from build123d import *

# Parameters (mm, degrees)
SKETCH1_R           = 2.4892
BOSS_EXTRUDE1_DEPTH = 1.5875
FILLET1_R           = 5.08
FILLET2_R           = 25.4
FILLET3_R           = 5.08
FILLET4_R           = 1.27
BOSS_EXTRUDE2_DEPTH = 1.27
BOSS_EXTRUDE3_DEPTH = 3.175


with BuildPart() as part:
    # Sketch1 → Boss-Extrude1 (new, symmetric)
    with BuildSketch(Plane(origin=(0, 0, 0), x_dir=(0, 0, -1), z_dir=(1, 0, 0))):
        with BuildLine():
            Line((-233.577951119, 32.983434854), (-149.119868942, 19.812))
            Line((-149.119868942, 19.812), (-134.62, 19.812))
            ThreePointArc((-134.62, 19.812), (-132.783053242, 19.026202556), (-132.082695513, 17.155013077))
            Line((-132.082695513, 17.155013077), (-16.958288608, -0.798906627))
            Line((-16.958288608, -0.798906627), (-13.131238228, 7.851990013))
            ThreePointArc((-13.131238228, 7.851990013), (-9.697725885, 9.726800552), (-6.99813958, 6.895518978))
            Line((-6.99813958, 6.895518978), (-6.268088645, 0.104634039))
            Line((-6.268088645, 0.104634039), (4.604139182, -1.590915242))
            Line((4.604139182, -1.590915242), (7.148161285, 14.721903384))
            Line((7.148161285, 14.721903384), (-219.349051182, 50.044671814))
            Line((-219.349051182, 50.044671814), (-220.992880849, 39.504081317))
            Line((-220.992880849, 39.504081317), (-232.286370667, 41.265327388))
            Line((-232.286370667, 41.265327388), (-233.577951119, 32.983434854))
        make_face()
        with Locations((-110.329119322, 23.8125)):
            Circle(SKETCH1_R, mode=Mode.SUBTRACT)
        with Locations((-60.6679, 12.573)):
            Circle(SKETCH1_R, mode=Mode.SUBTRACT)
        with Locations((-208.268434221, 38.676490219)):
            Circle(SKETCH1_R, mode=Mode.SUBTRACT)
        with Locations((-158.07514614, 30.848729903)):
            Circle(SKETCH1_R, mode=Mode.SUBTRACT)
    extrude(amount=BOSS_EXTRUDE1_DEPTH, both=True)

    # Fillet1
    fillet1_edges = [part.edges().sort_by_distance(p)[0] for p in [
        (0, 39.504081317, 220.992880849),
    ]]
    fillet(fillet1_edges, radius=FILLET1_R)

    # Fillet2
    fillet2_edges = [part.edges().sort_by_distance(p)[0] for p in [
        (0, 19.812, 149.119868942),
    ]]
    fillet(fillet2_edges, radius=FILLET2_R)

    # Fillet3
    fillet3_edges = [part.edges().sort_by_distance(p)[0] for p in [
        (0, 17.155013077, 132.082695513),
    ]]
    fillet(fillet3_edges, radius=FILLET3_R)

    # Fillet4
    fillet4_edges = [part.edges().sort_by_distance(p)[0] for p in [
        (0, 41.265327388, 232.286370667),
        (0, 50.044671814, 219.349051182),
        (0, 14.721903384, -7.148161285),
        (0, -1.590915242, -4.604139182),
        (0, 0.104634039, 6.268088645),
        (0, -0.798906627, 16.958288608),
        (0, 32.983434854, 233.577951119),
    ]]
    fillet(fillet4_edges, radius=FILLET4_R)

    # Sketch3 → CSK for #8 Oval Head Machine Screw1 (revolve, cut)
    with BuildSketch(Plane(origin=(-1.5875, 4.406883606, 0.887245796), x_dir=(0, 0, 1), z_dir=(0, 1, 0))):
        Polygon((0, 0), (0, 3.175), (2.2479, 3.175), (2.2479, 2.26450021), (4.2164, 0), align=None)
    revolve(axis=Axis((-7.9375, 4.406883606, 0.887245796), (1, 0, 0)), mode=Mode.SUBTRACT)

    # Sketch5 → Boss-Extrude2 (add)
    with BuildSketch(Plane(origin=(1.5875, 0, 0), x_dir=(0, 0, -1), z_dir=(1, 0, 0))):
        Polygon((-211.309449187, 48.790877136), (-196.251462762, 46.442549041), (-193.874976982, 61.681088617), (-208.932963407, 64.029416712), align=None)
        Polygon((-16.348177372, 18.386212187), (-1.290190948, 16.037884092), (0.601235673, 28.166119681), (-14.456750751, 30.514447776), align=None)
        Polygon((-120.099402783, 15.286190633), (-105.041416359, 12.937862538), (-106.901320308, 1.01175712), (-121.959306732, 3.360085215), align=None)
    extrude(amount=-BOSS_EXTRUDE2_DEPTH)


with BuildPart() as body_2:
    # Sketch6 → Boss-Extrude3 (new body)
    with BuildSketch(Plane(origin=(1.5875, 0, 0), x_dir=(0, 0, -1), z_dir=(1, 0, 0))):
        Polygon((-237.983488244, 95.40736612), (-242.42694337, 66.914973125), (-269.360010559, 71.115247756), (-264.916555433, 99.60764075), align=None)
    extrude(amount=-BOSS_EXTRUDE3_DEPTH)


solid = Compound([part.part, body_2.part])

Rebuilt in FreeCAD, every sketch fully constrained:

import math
import FreeCAD as App
import Part
import Sketcher
from FreeCAD import Vector
Q = App.Units.Quantity


def edges_at(feature, points):
    """Names of the edges that pass closest to the given points."""
    edges = feature.Shape.Edges
    near = lambda p: min(range(len(edges)), key=lambda i: edges[i].distToShape(Part.Vertex(*p))[0])
    return sorted({f"Edge{near(p) + 1}" for p in points})


def add_polygon(sketch, points):
    """Adds a closed chain of lines whose ends are joined by coincident constraints."""
    first, n = sketch.GeometryCount, len(points)
    for a, b in zip(points, points[1:] + points[:1]):
        sketch.addGeometry(Part.LineSegment(App.Vector(*a, 0), App.Vector(*b, 0)), False)
    for i in range(n):
        sketch.addConstraint(Sketcher.Constraint("Coincident", first + i, 2, first + (i + 1) % n, 1))

doc = App.newDocument("Part")
body = doc.addObject("PartDesign::Body", "Body")

# Sketch on YZ plane
sketch1 = body.newObject("Sketcher::SketchObject", "Sketch")
sketch1.AttachmentSupport = (doc.getObject("YZ_Plane"), [""])
sketch1.MapMode = "FlatFace"
sketch1.addGeometry([
    Part.LineSegment(Vector(32.983435, 233.577951, 0), Vector(19.812, 149.119869, 0)),  # 0
    Part.LineSegment(Vector(19.812, 149.119869, 0), Vector(19.812, 134.62, 0)),  # 1
    Part.ArcOfCircle(Part.Circle(Vector(17.272, 134.62, 0), Vector(0, 0, 1), 2.54), math.radians(-92.639854), math.radians(0)),  # 2
    Part.LineSegment(Vector(17.155013, 132.082696, 0), Vector(-0.798907, 16.958289, 0)),  # 3
    Part.LineSegment(Vector(-0.798907, 16.958289, 0), Vector(7.85199, 13.131238, 0)),  # 4
    Part.ArcOfCircle(Part.Circle(Vector(6.552075, 10.192832, 0), Vector(0, 0, 1), 3.2131), math.radians(-83.86401), math.radians(66.13599)),  # 5
    Part.LineSegment(Vector(6.895519, 6.99814, 0), Vector(0.104634, 6.268089, 0)),  # 6
    Part.LineSegment(Vector(0.104634, 6.268089, 0), Vector(-1.590915, -4.604139, 0)),  # 7
    Part.LineSegment(Vector(-1.590915, -4.604139, 0), Vector(14.721903, -7.148161, 0)),  # 8
    Part.LineSegment(Vector(14.721903, -7.148161, 0), Vector(50.044672, 219.349051, 0)),  # 9
    Part.LineSegment(Vector(50.044672, 219.349051, 0), Vector(39.504081, 220.992881, 0)),  # 10
    Part.LineSegment(Vector(39.504081, 220.992881, 0), Vector(41.265327, 232.286371, 0)),  # 11
    Part.LineSegment(Vector(41.265327, 232.286371, 0), Vector(32.983435, 233.577951, 0)),  # 12
    Part.Circle(Vector(12.573, 60.6679, 0), Vector(0, 0, 1), 2.4892),  # 13
    Part.Circle(Vector(23.8125, 110.329119, 0), Vector(0, 0, 1), 2.4892),  # 14
    Part.Circle(Vector(30.84873, 158.075146, 0), Vector(0, 0, 1), 2.4892),  # 15
    Part.Circle(Vector(38.67649, 208.268434, 0), Vector(0, 0, 1), 2.4892),  # 16
], False)
sketch1.addConstraint([
    Sketcher.Constraint("Coincident", 0, 2, 1, 1),
    Sketcher.Constraint("Coincident", 1, 2, 2, 2),
    Sketcher.Constraint("Coincident", 2, 1, 3, 1),
    Sketcher.Constraint("Coincident", 3, 2, 4, 1),
    Sketcher.Constraint("Coincident", 4, 2, 5, 2),
    Sketcher.Constraint("Coincident", 5, 1, 6, 1),
    Sketcher.Constraint("Coincident", 6, 2, 7, 1),
    Sketcher.Constraint("Coincident", 7, 2, 8, 1),
    Sketcher.Constraint("Coincident", 8, 2, 9, 1),
    Sketcher.Constraint("Coincident", 9, 2, 10, 1),
    Sketcher.Constraint("Coincident", 10, 2, 11, 1),
    Sketcher.Constraint("Coincident", 11, 2, 12, 1),
    Sketcher.Constraint("Coincident", 12, 2, 0, 1),
    Sketcher.Constraint("Vertical", 1),
    Sketcher.Constraint("Radius", 2, Q("0.1 in")),
    Sketcher.Constraint("Diameter", 13, Q("0.196 in")),
    Sketcher.Constraint("Diameter", 14, Q("0.196 in")),
    Sketcher.Constraint("Diameter", 15, Q("0.196 in")),
    Sketcher.Constraint("Diameter", 16, Q("0.196 in")),
    Sketcher.Constraint("DistanceY", -1, 1, 2, 3, Q("5.3 in")),
    Sketcher.Constraint("DistanceY", -1, 1, 1, 2, Q("5.3 in")),
    Sketcher.Constraint("Radius", 5, Q("0.1265 in")),
    Sketcher.Constraint("Distance", 8, Q("0.65 in")),
    Sketcher.Constraint("Distance", 10, Q("0.42 in")),
    Sketcher.Constraint("Distance", 11, Q("0.45 in")),
    Sketcher.Constraint("Distance", 12, Q("0.33 in")),
    Sketcher.Constraint("DistanceX", -1, 1, 2, 3, Q("0.68 in")),
    Sketcher.Constraint("Distance", 9, Q("9.025 in")),
    Sketcher.Constraint("DistanceX", -1, 1, 13, 3, Q("0.495 in")),
    Sketcher.Constraint("DistanceX", -1, 1, 14, 3, Q("0.9375 in")),
    Sketcher.Constraint("DistanceY", -1, 1, 13, 3, Q("2.3885 in")),
    Sketcher.Constraint("DistanceY", 1, 2, 1, 1, 14.499869),
    Sketcher.Constraint("DistanceY", 5, 1, 4, 2, 6.133099),
    Sketcher.Constraint("DistanceY", 6, 2, 3, 2, 10.6902),
    Sketcher.Constraint("DistanceY", 8, 2, 5, 1, 14.146301),
    Sketcher.Constraint("DistanceY", 0, 2, 11, 2, 83.166502),
    Sketcher.Constraint("DistanceY", 9, 2, 12, 2, 14.2289),
    Sketcher.Constraint("Distance", 0, 85.47897),
    Sketcher.Constraint("DistanceY", -1, 1, 5, 3, 10.192832),
    Sketcher.Constraint("DistanceY", -1, 1, 14, 3, 110.329119),
    Sketcher.Constraint("DistanceX", -1, 1, 15, 3, 30.84873),
    Sketcher.Constraint("DistanceX", -1, 1, 16, 3, 38.67649),
    Sketcher.Constraint("DistanceY", -1, 1, 3, 2, 16.958289),
    Sketcher.Constraint("DistanceX", -1, 1, 4, 2, 7.85199),
    Sketcher.Constraint("DistanceY", -1, 1, 4, 2, 13.131238),
    Sketcher.Constraint("DistanceY", 7, 2, -1, 1, 4.604139),
    Sketcher.Constraint("DistanceX", -1, 1, 9, 2, 50.044672),
    Sketcher.Constraint("DistanceY", -1, 1, 9, 2, 219.349051),
    Sketcher.Constraint("DistanceY", 15, 3, 16, 3, 50.193288),
    Sketcher.Constraint("DistanceY", 2, 1, 15, 3, 25.992451),
    Sketcher.Constraint("DistanceX", 3, 2, 5, 3, 7.350982),
    Sketcher.Constraint("DistanceX", 3, 2, 2, 1, 17.95392),
    Sketcher.Constraint("DistanceX", 6, 2, 5, 3, 6.447441),
])
pad1 = body.newObject("PartDesign::Pad", "Pad")
pad1.Profile = sketch1
pad1.Length = Q("0.125 in")
pad1.Midplane = True
doc.recompute()

fillet = body.newObject("PartDesign::Fillet", "Fillet")
fillet.Base = (pad1, edges_at(pad1, [(0, 39.504, 220.993)]))
fillet.Radius = Q("0.2 in")
doc.recompute()

fillet2 = body.newObject("PartDesign::Fillet", "Fillet001")
fillet2.Base = (fillet, edges_at(fillet, [(0, 19.812, 149.12)]))
fillet2.Radius = Q("1 in")
doc.recompute()

fillet3 = body.newObject("PartDesign::Fillet", "Fillet002")
fillet3.Base = (fillet2, edges_at(fillet2, [(0, 17.155, 132.083)]))
fillet3.Radius = Q("0.2 in")
doc.recompute()

fillet4 = body.newObject("PartDesign::Fillet", "Fillet003")
fillet4.Base = (fillet3, edges_at(fillet3, [
    (0, 41.265, 232.286),
    (0, 50.045, 219.349),
    (0, 14.722, -7.148),
    (0, -1.591, -4.604),
    (0, 0.105, 6.268),
    (0, -0.799, 16.958),
    (0, 32.983, 233.578),
]))
fillet4.Radius = Q("0.05 in")

# Sketch on XZ plane
sketch2 = body.newObject("Sketcher::SketchObject", "Sketch001")
sketch2.AttachmentSupport = (doc.getObject("XZ_Plane"), [""])
sketch2.MapMode = "FlatFace"
sketch2.AttachmentOffset = App.Placement(Vector(0, 0, -4.406884), App.Rotation())
add_polygon(sketch2, [(1.6, 0.9), (-1.6, 0.9), (-1.6, 5.1), (0.7, 3.1), (1.6, 3.1)])  # lines 0-4
sketch2.addGeometry(Part.LineSegment(Vector(-1.6, 0.9, 0), Vector(1.6, 0.9, 0)), True)  # axis
sketch2.addConstraint([
    Sketcher.Constraint("Horizontal", 0),
    Sketcher.Constraint("Vertical", 1),
    Sketcher.Constraint("Horizontal", 3),
    Sketcher.Constraint("Vertical", 4),
    Sketcher.Constraint("Horizontal", 5),
    Sketcher.Constraint("Coincident", 5, 1, 0, 2),
    Sketcher.Constraint("Vertical", 3, 2, 5, 2),
    Sketcher.Constraint("Angle", 2, Q("-41 deg")),
    Sketcher.Constraint("DistanceX", 0, 2, 0, 1, Q("0.125 in")),
    Sketcher.Constraint("DistanceY", 1, 1, 1, 2, Q("0.166 in")),
    Sketcher.Constraint("DistanceY", 4, 2, 4, 1, Q("0.0885 in")),
    Sketcher.Constraint("DistanceX", 0, 2, -1, 1, Q("0.0625 in")),
    Sketcher.Constraint("DistanceY", -1, 1, 0, 2, 0.887246),
])
groove = body.newObject("PartDesign::Groove", "Groove")
groove.Profile = sketch2
groove.ReferenceAxis = (sketch2, ["Axis0"])
groove.Angle = 360

# Sketch on YZ plane
sketch3 = body.newObject("Sketcher::SketchObject", "Sketch002")
sketch3.AttachmentSupport = (doc.getObject("YZ_Plane"), [""])
sketch3.MapMode = "FlatFace"
sketch3.AttachmentOffset = App.Placement(Vector(0, 0, 0.0625 * 25.4), App.Rotation())
add_polygon(sketch3, [(49, 211), (46, 196), (62, 194), (64, 209)])  # lines 0-3
add_polygon(sketch3, [(18, 16), (16, 1), (28, -1), (31, 14)])  # lines 4-7
add_polygon(sketch3, [(13, 105), (15, 120), (3, 122), (1, 107)])  # lines 8-11
sketch3.addConstraint([
    Sketcher.Constraint("Perpendicular", 0, 1),
    Sketcher.Constraint("Perpendicular", 1, 2),
    Sketcher.Constraint("Perpendicular", 2, 3),
    Sketcher.Constraint("Perpendicular", 3, 4),
    Sketcher.Constraint("Perpendicular", 4, 5),
    Sketcher.Constraint("Perpendicular", 5, 6),
    Sketcher.Constraint("Perpendicular", 6, 7),
    Sketcher.Constraint("Perpendicular", 7, 8),
    Sketcher.Constraint("Perpendicular", 8, 9),
    Sketcher.Constraint("Perpendicular", 9, 10),
    Sketcher.Constraint("Perpendicular", 10, 11),
    Sketcher.Constraint("Equal", 2, 4),
    Sketcher.Constraint("Equal", 6, 8),
    Sketcher.Constraint("Distance", 0, Q("0.6 in")),
    Sketcher.Constraint("DistanceY", 0, 2, 2, 2, 12.681501),
    Sketcher.Constraint("DistanceY", 5, 2, 0, 2, 196.852698),
    Sketcher.Constraint("DistanceX", 6, 2, 0, 2, 15.928101),
    Sketcher.Constraint("DistanceY", 7, 2, 1, 2, 177.5268),
    Sketcher.Constraint("DistanceX", -1, 1, 0, 2, 46.442549),
    Sketcher.Constraint("DistanceX", -1, 1, 1, 2, 61.681089),
    Sketcher.Constraint("DistanceY", -1, 1, 3, 2, 211.309449),
    Sketcher.Constraint("DistanceX", -1, 1, 8, 2, 15.286191),
    Sketcher.Constraint("DistanceY", -1, 1, 10, 2, 106.90132),
    Sketcher.Constraint("DistanceY", 8, 2, 0, 2, 76.15206),
])
pad2 = body.newObject("PartDesign::Pad", "Pad001")
pad2.Profile = sketch3
pad2.Length = Q("0.05 in")
pad2.Reversed = True
body2 = doc.addObject("PartDesign::Body", "Body001")

# Sketch on YZ plane
sketch4 = body2.newObject("Sketcher::SketchObject", "Sketch003")
sketch4.AttachmentSupport = (doc.getObject("YZ_Plane001"), [""])
sketch4.MapMode = "FlatFace"
sketch4.AttachmentOffset = App.Placement(Vector(0, 0, 0.0625 * 25.4), App.Rotation())
add_polygon(sketch4, [(67, 242), (95, 238), (100, 265), (71, 269)])  # lines 0-3
sketch4.addConstraint([
    Sketcher.Constraint("Perpendicular", 0, 1),
    Sketcher.Constraint("Perpendicular", 1, 2),
    Sketcher.Constraint("Perpendicular", 2, 3),
    Sketcher.Constraint("Distance", 1, 27.258621),
    Sketcher.Constraint("DistanceY", -1, 1, 0, 2, 237.983488),
    Sketcher.Constraint("DistanceX", -1, 1, 1, 2, 99.607641),
    Sketcher.Constraint("DistanceY", -1, 1, 2, 2, 269.360011),
    Sketcher.Constraint("DistanceX", 2, 2, 0, 2, 24.292118),
])
pad3 = body2.newObject("PartDesign::Pad", "Pad002")
pad3.Profile = sketch4
pad3.Length = Q("0.125 in")
pad3.Reversed = True

doc.recompute()
